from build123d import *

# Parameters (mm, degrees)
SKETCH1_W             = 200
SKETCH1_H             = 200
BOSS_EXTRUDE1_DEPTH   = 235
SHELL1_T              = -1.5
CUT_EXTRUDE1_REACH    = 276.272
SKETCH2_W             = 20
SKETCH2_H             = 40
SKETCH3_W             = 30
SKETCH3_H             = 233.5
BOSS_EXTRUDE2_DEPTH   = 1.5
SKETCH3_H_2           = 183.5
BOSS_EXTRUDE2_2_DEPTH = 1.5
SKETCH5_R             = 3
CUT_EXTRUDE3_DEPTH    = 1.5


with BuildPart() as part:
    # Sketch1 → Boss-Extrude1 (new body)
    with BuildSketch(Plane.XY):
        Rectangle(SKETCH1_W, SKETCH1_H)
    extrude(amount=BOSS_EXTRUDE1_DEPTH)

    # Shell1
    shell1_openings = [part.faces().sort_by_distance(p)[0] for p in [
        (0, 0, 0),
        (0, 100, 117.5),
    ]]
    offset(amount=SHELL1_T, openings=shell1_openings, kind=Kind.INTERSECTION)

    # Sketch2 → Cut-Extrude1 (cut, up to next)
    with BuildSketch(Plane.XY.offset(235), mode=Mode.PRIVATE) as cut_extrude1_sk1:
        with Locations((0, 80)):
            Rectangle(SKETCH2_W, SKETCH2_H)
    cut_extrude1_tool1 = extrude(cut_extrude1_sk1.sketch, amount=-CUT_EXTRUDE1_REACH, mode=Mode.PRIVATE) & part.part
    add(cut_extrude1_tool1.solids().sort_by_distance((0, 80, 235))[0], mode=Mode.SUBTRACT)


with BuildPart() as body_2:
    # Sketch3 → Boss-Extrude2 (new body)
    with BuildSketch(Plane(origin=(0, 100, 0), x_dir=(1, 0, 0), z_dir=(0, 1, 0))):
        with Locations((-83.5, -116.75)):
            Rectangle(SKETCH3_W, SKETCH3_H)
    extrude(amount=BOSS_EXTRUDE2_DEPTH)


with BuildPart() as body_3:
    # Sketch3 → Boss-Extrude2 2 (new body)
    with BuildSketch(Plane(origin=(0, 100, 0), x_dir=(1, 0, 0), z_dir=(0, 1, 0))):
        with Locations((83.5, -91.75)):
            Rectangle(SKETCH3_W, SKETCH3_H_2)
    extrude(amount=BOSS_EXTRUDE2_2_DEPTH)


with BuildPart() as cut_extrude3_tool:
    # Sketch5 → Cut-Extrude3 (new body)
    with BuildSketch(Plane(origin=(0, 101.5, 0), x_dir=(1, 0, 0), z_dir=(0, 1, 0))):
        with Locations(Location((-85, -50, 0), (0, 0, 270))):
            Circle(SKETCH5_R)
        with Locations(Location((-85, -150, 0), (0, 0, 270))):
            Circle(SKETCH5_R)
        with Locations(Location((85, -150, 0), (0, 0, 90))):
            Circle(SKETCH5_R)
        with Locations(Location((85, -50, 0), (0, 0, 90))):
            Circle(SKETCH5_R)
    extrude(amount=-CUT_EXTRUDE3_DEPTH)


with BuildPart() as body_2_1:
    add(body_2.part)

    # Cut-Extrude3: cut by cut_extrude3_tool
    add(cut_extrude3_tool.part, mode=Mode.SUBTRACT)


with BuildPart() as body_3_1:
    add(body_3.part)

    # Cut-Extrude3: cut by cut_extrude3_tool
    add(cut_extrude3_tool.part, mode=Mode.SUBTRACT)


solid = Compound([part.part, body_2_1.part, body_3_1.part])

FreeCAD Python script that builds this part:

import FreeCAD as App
import Part
import Sketcher


def faces_at(feature, points):
    """Names of the faces that lie closest to the given points."""
    faces = feature.Shape.Faces
    near = lambda p: min(range(len(faces)), key=lambda i: faces[i].distToShape(Part.Vertex(*p))[0])
    return sorted({f"Face{near(p) + 1}" for p in points})


def add_polygon(sketch, points):
    """Adds a closed chain of lines whose ends are joined by coincident constraints."""
    first, n = sketch.GeometryCount, len(points)
    for a, b in zip(points, points[1:] + points[:1]):
        sketch.addGeometry(Part.LineSegment(App.Vector(*a, 0), App.Vector(*b, 0)), False)
    for i in range(n):
        sketch.addConstraint(Sketcher.Constraint("Coincident", first + i, 2, first + (i + 1) % n, 1))

doc = App.newDocument("Part")
body = doc.addObject("PartDesign::Body", "Body")

# Sketch on XY plane
sketch1 = body.newObject("Sketcher::SketchObject", "Sketch")
sketch1.AttachmentSupport = (doc.getObject("XY_Plane"), [""])
sketch1.MapMode = "FlatFace"
add_polygon(sketch1, [(-100, 100), (-100, -100), (100, -100), (100, 100)])  # lines 0-3
sketch1.addConstraint([
    Sketcher.Constraint("Vertical", 0),
    Sketcher.Constraint("Horizontal", 1),
    Sketcher.Constraint("Vertical", 2),
    Sketcher.Constraint("Horizontal", 3),
    Sketcher.Constraint("Symmetric", 0, 2, 2, 2, -1, 1),
    Sketcher.Constraint("Equal", 3, 0),
    Sketcher.Constraint("DistanceX", 1, 1, 1, 2, 200.0),
])
pad1 = body.newObject("PartDesign::Pad", "Pad")
pad1.Profile = sketch1
pad1.Length = 235
doc.recompute()

thickness = body.newObject("PartDesign::Thickness", "Thickness")
thickness.Base = (pad1, faces_at(pad1, [(0, 0, 0), (0, 100, 117.5)]))
thickness.Value = 1.5
thickness.Reversed = True
thickness.Join = "Intersection"

# Sketch on XY plane
sketch2 = body.newObject("Sketcher::SketchObject", "Sketch001")
sketch2.AttachmentSupport = (doc.getObject("XY_Plane"), [""])
sketch2.MapMode = "FlatFace"
sketch2.AttachmentOffset = App.Placement(App.Vector(0, 0, 235), App.Rotation())
add_polygon(sketch2, [(-10, 100), (-10, 60), (10, 60), (10, 100)])  # lines 0-3
sketch2.addConstraint([
    Sketcher.Constraint("Vertical", 0),
    Sketcher.Constraint("Horizontal", 1),
    Sketcher.Constraint("Vertical", 2),
    Sketcher.Constraint("Horizontal", 3),
    Sketcher.Constraint("DistanceX", 1, 1, 1, 2, 20.0),
    Sketcher.Constraint("DistanceY", 0, 2, 0, 1, 40.0),
    Sketcher.Constraint("DistanceX", 0, 2, -1, 1, 10.0),
    Sketcher.Constraint("DistanceY", -1, 1, 0, 2, 60.0),
])
pocket1 = body.newObject("PartDesign::Pocket", "Pocket")
pocket1.Profile = sketch2
pocket1.Type = "UpToFirst"
body2 = doc.addObject("PartDesign::Body", "Body001")

# Sketch on XZ plane
sketch3 = body2.newObject("Sketcher::SketchObject", "Sketch002")
sketch3.AttachmentSupport = (doc.getObject("XZ_Plane001"), [""])
sketch3.MapMode = "FlatFace"
sketch3.AttachmentOffset = App.Placement(App.Vector(0, 0, -100), App.Rotation())
add_polygon(sketch3, [(-98, 0), (-98, 234), (-68, 234), (-68, 0)])  # lines 0-3
sketch3.addConstraint([
    Sketcher.Constraint("Vertical", 0),
    Sketcher.Constraint("Horizontal", 1),
    Sketcher.Constraint("Vertical", 2),
    Sketcher.Constraint("Horizontal", 3),
    Sketcher.Constraint("PointOnObject", 2, 2, -1),
    Sketcher.Constraint("DistanceX", 1, 1, 1, 2, 30.0),
    Sketcher.Constraint("DistanceY", 0, 1, 0, 2, 233.5),
    Sketcher.Constraint("DistanceX", 0, 2, -1, 1, 98.5),
])
pad2 = body2.newObject("PartDesign::Pad", "Pad001")
pad2.Profile = sketch3
pad2.Length = 1.5
pad2.Reversed = True
body3 = doc.addObject("PartDesign::Body", "Body002")

# Sketch on XZ plane
sketch4 = body3.newObject("Sketcher::SketchObject", "Sketch003")
sketch4.AttachmentSupport = (doc.getObject("XZ_Plane002"), [""])
sketch4.MapMode = "FlatFace"
sketch4.AttachmentOffset = App.Placement(App.Vector(0, 0, -100), App.Rotation())
add_polygon(sketch4, [(68, 0), (68, 184), (98, 184), (98, 0)])  # lines 0-3
sketch4.addConstraint([
    Sketcher.Constraint("Vertical", 0),
    Sketcher.Constraint("Horizontal", 1),
    Sketcher.Constraint("Vertical", 2),
    Sketcher.Constraint("Horizontal", 3),
    Sketcher.Constraint("PointOnObject", 2, 2, -1),
    Sketcher.Constraint("DistanceX", 1, 1, 1, 2, 30.0),
    Sketcher.Constraint("DistanceY", 0, 1, 0, 2, 183.5),
    Sketcher.Constraint("DistanceX", -1, 1, 0, 2, 68.5),
])
pad3 = body3.newObject("PartDesign::Pad", "Pad002")
pad3.Profile = sketch4
pad3.Length = 1.5
pad3.Reversed = True
body4 = doc.addObject("PartDesign::Body", "Body003")
body4.AllowCompound = True

# Sketch on XZ plane
sketch5 = body4.newObject("Sketcher::SketchObject", "Sketch004")
sketch5.AttachmentSupport = (doc.getObject("XZ_Plane003"), [""])
sketch5.MapMode = "FlatFace"
sketch5.AttachmentOffset = App.Placement(App.Vector(0, 0, -101.5), App.Rotation())
sketch5.addGeometry([
    Part.Circle(App.Vector(-85, 50, 0), App.Vector(0, 0, 1), 3),
    Part.Circle(App.Vector(-85, 150, 0), App.Vector(0, 0, 1), 3),
    Part.Circle(App.Vector(85, 150, 0), App.Vector(0, 0, 1), 3),
    Part.Circle(App.Vector(85, 50, 0), App.Vector(0, 0, 1), 3),
], False)
sketch5.addConstraint([
    Sketcher.Constraint("Equal", 0, 1),
    Sketcher.Constraint("Equal", 1, 2),
    Sketcher.Constraint("Equal", 2, 3),
    Sketcher.Constraint("Symmetric", 1, 3, 2, 3, -2),
    Sketcher.Constraint("Symmetric", 0, 3, 3, 3, -2),
    Sketcher.Constraint("Vertical", 0, 3, 1, 3),
    Sketcher.Constraint("Diameter", 0, 6.0),
    Sketcher.Constraint("DistanceX", 0, 3, -1, 1, 85.0),
    Sketcher.Constraint("DistanceY", -1, 1, 0, 3, 50.0),
    Sketcher.Constraint("DistanceY", -1, 1, 1, 3, 150.0),
])
pad4 = body4.newObject("PartDesign::Pad", "Pad003")
pad4.Profile = sketch5
pad4.Length = 1.5
doc.recompute()

body5 = doc.addObject("PartDesign::Body", "Body004")
body5.BaseFeature = body4
boolean = body2.newObject("PartDesign::Boolean", "Boolean")
boolean.Type = "Cut"
boolean.addObjects([body5])
doc.recompute()

boolean2 = body3.newObject("PartDesign::Boolean", "Boolean001")
boolean2.Type = "Cut"
boolean2.addObjects([body4])

doc.recompute()
